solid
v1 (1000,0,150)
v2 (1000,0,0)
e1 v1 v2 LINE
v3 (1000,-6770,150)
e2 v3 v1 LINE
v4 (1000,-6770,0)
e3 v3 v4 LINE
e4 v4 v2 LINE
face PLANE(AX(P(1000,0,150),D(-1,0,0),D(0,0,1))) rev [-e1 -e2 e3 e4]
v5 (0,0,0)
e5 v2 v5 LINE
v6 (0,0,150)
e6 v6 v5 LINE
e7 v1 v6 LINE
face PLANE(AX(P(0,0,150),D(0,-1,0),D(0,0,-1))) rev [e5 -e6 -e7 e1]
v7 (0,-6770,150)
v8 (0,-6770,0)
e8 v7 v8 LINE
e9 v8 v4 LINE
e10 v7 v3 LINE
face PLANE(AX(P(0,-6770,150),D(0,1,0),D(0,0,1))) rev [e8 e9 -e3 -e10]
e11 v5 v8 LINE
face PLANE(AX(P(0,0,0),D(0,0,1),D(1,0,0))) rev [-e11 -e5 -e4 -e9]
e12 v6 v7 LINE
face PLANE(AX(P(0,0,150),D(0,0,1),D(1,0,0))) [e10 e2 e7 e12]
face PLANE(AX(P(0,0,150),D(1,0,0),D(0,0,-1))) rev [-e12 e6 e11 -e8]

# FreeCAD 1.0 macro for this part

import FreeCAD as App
import Part
import Sketcher

V = App.Vector


def add_polygon(sketch, points):
    """Adds a closed chain of lines whose ends are joined by coincident constraints."""
    first, n = sketch.GeometryCount, len(points)
    for a, b in zip(points, points[1:] + points[:1]):
        sketch.addGeometry(Part.LineSegment(App.Vector(*a, 0), App.Vector(*b, 0)), False)
    for i in range(n):
        sketch.addConstraint(Sketcher.Constraint("Coincident", first + i, 2, first + (i + 1) % n, 1))

doc = App.newDocument("Part")
body = doc.addObject("PartDesign::Body", "Body")

# Sketch on XY plane
sketch1 = body.newObject("Sketcher::SketchObject", "Sketch")
sketch1.AttachmentSupport = (doc.getObject("XY_Plane"), [""])
sketch1.MapMode = "FlatFace"
add_polygon(sketch1, [(0, 0), (0, -6770), (1000, -6770), (1000, 0)])  # lines 0-3
sketch1.addConstraint([
    Sketcher.Constraint("Vertical", 0),
    Sketcher.Constraint("Horizontal", 1),
    Sketcher.Constraint("Vertical", 2),
    Sketcher.Constraint("Horizontal", 3),
    Sketcher.Constraint("Coincident", 3, 2, -1, 1),
    Sketcher.Constraint("DistanceX", 1, 1, 1, 2, 1000.0),
    Sketcher.Constraint("DistanceY", 0, 2, 0, 1, 6770.0),
])
pad1 = body.newObject("PartDesign::Pad", "Pad")
pad1.Profile = sketch1
pad1.Length = 150

doc.recompute()
